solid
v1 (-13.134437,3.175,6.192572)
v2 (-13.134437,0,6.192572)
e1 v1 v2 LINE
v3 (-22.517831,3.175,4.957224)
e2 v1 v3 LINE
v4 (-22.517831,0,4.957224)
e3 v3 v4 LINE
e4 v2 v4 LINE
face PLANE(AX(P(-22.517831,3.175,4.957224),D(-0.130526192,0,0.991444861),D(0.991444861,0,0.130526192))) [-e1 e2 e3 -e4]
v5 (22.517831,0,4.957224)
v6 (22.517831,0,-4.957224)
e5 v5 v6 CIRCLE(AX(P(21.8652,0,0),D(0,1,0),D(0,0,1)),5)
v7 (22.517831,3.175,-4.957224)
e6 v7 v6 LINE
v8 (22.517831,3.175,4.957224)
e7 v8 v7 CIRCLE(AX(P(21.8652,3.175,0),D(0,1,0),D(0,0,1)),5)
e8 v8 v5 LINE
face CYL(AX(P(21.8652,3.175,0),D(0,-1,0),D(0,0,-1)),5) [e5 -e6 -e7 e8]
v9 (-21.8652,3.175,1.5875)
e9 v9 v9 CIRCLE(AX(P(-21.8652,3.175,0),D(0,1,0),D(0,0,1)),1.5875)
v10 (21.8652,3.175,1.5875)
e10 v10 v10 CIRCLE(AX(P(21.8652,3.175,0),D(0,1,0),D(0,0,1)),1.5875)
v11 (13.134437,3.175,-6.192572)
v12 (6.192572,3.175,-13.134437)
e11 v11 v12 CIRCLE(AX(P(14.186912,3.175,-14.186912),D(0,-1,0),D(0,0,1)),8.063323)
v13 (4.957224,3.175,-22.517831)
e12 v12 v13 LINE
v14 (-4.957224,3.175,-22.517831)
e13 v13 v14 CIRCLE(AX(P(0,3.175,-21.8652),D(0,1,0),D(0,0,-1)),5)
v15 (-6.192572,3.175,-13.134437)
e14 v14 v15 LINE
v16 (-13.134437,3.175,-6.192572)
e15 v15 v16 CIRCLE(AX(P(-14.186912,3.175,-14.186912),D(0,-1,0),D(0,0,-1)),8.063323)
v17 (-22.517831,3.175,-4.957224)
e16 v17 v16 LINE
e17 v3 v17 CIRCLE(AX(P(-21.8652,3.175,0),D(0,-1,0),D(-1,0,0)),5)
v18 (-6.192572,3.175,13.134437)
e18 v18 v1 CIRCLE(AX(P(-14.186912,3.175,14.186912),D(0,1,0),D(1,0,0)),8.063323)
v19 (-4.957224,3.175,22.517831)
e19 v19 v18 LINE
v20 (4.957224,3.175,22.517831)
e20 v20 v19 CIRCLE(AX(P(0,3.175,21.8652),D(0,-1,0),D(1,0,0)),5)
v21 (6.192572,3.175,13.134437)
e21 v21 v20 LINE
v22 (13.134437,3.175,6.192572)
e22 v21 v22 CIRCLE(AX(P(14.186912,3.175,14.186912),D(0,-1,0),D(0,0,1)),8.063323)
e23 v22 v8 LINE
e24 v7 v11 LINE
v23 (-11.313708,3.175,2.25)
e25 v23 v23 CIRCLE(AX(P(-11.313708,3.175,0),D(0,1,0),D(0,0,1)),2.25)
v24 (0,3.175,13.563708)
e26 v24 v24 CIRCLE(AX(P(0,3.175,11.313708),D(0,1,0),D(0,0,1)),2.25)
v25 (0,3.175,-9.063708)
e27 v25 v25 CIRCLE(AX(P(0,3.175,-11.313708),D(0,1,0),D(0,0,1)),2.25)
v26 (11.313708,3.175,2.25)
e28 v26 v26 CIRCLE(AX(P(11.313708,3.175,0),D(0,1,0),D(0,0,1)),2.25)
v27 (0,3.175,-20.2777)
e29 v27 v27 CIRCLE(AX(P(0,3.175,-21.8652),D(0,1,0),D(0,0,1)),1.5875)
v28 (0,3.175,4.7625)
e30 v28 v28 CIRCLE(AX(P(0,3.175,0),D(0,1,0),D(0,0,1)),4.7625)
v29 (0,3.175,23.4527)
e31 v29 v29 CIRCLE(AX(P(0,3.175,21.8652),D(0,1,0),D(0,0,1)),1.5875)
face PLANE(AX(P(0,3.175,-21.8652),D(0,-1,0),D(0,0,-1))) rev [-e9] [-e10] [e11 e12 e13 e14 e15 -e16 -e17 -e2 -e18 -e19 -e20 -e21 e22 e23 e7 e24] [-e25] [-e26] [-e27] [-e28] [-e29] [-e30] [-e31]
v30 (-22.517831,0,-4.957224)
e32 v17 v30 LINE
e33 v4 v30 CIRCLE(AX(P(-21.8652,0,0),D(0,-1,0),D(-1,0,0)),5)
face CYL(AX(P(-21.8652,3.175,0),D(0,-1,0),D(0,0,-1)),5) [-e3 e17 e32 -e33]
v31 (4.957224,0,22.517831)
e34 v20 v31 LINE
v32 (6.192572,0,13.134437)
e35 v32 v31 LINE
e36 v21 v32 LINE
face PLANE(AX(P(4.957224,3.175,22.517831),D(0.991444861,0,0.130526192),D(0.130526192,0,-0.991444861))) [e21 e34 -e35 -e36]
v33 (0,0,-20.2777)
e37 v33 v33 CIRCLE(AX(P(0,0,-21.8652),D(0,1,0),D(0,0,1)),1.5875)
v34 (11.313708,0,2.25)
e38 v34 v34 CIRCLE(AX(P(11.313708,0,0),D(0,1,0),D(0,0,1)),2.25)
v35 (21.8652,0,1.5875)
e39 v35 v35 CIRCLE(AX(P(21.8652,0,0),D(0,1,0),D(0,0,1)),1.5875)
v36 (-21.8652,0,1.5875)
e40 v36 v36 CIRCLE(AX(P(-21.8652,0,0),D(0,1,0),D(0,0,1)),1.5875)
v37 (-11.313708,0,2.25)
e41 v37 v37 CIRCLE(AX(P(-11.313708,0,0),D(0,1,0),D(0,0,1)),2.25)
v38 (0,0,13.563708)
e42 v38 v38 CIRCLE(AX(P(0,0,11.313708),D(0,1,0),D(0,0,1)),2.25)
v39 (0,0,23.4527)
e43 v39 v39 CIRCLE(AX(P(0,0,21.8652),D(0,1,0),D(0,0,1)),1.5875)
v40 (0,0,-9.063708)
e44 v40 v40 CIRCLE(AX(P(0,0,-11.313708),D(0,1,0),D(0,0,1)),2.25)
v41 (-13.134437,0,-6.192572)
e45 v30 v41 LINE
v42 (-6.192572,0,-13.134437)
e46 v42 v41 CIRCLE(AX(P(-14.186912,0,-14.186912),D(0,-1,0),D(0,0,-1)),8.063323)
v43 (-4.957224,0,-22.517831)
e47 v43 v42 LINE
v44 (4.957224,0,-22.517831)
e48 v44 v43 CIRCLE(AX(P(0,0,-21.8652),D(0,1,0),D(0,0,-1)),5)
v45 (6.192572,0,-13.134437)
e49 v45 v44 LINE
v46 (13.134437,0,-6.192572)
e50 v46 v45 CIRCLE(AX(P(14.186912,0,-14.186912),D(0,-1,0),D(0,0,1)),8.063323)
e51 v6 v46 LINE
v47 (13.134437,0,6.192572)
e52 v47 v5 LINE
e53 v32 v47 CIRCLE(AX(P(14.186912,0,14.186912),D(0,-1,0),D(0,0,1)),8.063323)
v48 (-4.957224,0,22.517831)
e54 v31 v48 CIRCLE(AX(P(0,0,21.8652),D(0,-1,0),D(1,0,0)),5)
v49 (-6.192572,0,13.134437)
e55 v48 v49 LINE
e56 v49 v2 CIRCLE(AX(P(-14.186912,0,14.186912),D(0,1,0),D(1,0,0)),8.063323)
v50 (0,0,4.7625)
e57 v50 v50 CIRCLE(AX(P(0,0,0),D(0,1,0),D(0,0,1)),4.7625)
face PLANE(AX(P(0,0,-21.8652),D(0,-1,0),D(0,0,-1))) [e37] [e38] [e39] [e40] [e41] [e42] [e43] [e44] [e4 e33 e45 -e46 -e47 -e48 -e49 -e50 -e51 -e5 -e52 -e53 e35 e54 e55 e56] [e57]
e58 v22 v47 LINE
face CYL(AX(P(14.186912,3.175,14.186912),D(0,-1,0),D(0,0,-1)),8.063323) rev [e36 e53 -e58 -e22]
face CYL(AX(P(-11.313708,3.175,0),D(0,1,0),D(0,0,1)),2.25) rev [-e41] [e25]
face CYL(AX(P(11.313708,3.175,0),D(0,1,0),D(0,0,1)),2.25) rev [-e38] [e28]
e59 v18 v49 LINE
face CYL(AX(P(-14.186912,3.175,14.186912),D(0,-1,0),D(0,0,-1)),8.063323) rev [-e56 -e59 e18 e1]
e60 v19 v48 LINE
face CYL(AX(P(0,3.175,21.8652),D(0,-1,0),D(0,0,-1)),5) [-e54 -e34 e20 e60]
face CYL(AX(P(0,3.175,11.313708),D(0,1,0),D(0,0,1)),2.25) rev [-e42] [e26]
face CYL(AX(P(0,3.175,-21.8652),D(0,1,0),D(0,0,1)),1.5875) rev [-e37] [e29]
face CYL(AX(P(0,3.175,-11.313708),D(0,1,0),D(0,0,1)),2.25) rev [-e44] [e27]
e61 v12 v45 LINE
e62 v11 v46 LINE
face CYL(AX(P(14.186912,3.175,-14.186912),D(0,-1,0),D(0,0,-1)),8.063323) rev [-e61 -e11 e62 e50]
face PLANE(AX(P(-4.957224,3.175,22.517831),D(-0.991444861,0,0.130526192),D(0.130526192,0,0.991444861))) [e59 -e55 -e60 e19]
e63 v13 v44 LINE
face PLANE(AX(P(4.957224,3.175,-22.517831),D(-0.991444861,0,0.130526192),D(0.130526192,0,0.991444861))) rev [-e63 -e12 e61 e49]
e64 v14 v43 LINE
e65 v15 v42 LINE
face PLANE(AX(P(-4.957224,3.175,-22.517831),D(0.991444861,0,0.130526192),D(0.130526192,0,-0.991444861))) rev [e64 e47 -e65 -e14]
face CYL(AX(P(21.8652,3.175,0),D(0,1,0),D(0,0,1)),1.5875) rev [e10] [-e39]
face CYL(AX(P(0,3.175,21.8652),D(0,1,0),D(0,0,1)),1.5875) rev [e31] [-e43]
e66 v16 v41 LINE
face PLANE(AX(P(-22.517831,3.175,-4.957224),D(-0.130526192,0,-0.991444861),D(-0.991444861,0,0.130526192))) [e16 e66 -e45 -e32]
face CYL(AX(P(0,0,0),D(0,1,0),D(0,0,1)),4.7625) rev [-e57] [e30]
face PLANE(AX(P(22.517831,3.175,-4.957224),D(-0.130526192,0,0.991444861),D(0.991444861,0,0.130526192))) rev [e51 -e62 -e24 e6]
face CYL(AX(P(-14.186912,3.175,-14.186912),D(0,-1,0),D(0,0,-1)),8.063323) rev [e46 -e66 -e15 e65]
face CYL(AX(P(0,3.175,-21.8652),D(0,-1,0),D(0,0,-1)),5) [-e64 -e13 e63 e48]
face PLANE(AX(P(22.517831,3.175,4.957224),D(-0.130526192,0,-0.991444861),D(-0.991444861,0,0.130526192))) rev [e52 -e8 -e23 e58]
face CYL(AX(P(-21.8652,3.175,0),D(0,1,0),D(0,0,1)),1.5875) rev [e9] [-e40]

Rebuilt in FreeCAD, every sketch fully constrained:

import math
import FreeCAD as App
import Part
import Sketcher
from FreeCAD import Vector
Q = App.Units.Quantity

doc = App.newDocument("Part")
body = doc.addObject("PartDesign::Body", "Body")

sketch1 = doc.addObject("Sketcher::SketchObject", "Sketch")
body.addObject(sketch1)
sketch1.AttachmentSupport = (doc.XZ_Plane, [""])
sketch1.MapMode = "FlatFace"
sketch1.addGeometry([
    Part.LineSegment(Vector(6.192572, -13.134437, 0), Vector(4.957224, -22.517831, 0)),
    Part.ArcOfCircle(Part.Circle(Vector(0, -21.8652, 0), Vector(0, 0, 1), 5), math.radians(-172.5), math.radians(-7.5)),
    Part.LineSegment(Vector(-4.957224, -22.517831, 0), Vector(-6.192572, -13.134437, 0)),
    Part.ArcOfCircle(Part.Circle(Vector(-14.186912, -14.186912, 0), Vector(0, 0, 1), 8.063323), math.radians(7.5), math.radians(45)),
    Part.LineSegment(Vector(-8.485281, -8.485281, 0), Vector(8.485281, 8.485281, 0)),
    Part.ArcOfCircle(Part.Circle(Vector(14.186912, 14.186912, 0), Vector(0, 0, 1), 8.063323), math.radians(-135), math.radians(-97.5)),
    Part.LineSegment(Vector(13.134437, 6.192572, 0), Vector(22.517831, 4.957224, 0)),
    Part.ArcOfCircle(Part.Circle(Vector(21.8652, 0, 0), Vector(0, 0, 1), 5), math.radians(-82.5), math.radians(82.5)),
    Part.LineSegment(Vector(22.517831, -4.957224, 0), Vector(13.134437, -6.192572, 0)),
    Part.ArcOfCircle(Part.Circle(Vector(14.186912, -14.186912, 0), Vector(0, 0, 1), 8.063323), math.radians(97.5), math.radians(172.5)),
], False)
sketch1.addConstraint([
    Sketcher.Constraint("Tangent", 0, 2, 1, 2),
    Sketcher.Constraint("Tangent", 1, 1, 2, 1),
    Sketcher.Constraint("Tangent", 2, 2, 3, 1),
    Sketcher.Constraint("Coincident", 3, 2, 4, 1),
    Sketcher.Constraint("Coincident", 4, 2, 5, 1),
    Sketcher.Constraint("Tangent", 5, 2, 6, 1),
    Sketcher.Constraint("Tangent", 6, 2, 7, 2),
    Sketcher.Constraint("Tangent", 7, 1, 8, 1),
    Sketcher.Constraint("Tangent", 8, 2, 9, 1),
    Sketcher.Constraint("Tangent", 9, 2, 0, 1),
    Sketcher.Constraint("Equal", 3, 5),
    Sketcher.Constraint("Equal", 1, 7),
    Sketcher.Constraint("Equal", 5, 9),
    Sketcher.Constraint("Symmetric", 3, 3, 5, 3, -1, 1),
    Sketcher.Constraint("Symmetric", 3, 3, 9, 3, -2),
    Sketcher.Constraint("PointOnObject", 1, 3, -2),
    Sketcher.Constraint("PointOnObject", 7, 3, -1),
    Sketcher.Constraint("Perpendicular", 0, 6),
    Sketcher.Constraint("Equal", 2, 6),
    Sketcher.Constraint("Radius", 1, Q("5 mm")),
    Sketcher.Constraint("Angle", 4, Q("45 deg")),
    Sketcher.Constraint("Distance", 4, Q("24 mm")),
    Sketcher.Constraint("Angle", 0, Q("-97.5 deg")),
    Sketcher.Constraint("Radius", 3, Q("8.063323 mm")),
    Sketcher.Constraint("DistanceX", 3, 2, -1, 1, Q("8.485281 mm")),
])
pad1 = doc.addObject("PartDesign::Pad", "Pad")
body.addObject(pad1)
pad1.Profile = sketch1
pad1.Length = 3.175
pad1.Reversed = True
doc.recompute()

datumplane = doc.addObject("PartDesign::Plane", "DatumPlane")
body.addObject(datumplane)
datumplane.Placement = App.Placement(Vector(0, 0, 0), App.Rotation(Vector(0.707106781, 0, 0.707106781), Vector(0, -1, 0), Vector(0.707106781, 0, -0.707106781), "ZXY"))
mirrored = doc.addObject("PartDesign::Mirrored", "Mirrored")
body.addObject(mirrored)
mirrored.Originals = [pad1]
mirrored.MirrorPlane = (datumplane, [""])
body.Tip = mirrored

sketch2 = doc.addObject("Sketcher::SketchObject", "Sketch001")
body.addObject(sketch2)
sketch2.AttachmentSupport = (doc.XZ_Plane, [""])
sketch2.MapMode = "FlatFace"
sketch2.AttachmentOffset = App.Placement(Vector(0, 0, -3.175), App.Rotation())
sketch2.addGeometry([
    Part.Circle(Vector(0, -21.8652, 0), Vector(0, 0, 1), 1.5875),
    Part.Circle(Vector(0, 21.8652, 0), Vector(0, 0, 1), 1.5875),
    Part.Circle(Vector(-21.8652, 0, 0), Vector(0, 0, 1), 1.5875),
    Part.Circle(Vector(21.8652, 0, 0), Vector(0, 0, 1), 1.5875),
], False)
sketch2.addConstraint([
    Sketcher.Constraint("Equal", 0, 1),
    Sketcher.Constraint("Equal", 1, 2),
    Sketcher.Constraint("Equal", 2, 3),
    Sketcher.Constraint("Symmetric", 0, 3, 1, 3, -1, 1),
    Sketcher.Constraint("Symmetric", 2, 3, 3, 3, -1, 1),
    Sketcher.Constraint("PointOnObject", 0, 3, -2),
    Sketcher.Constraint("PointOnObject", 2, 3, -1),
    Sketcher.Constraint("Diameter", 0, Q("3.175 mm")),
    Sketcher.Constraint("DistanceY", 0, 3, -1, 1, Q("21.8652 mm")),
    Sketcher.Constraint("DistanceX", 2, 3, -1, 1, Q("21.8652 mm")),
])
doc.recompute()
hole = doc.addObject("PartDesign::Hole", "Hole")
body.addObject(hole)
hole.Profile = sketch2
hole.ThreadType = "None"
hole.Diameter = 3.175
hole.DepthType = "ThroughAll"
hole.Reversed = True

sketch3 = doc.addObject("Sketcher::SketchObject", "Sketch002")
body.addObject(sketch3)
sketch3.AttachmentSupport = (doc.XZ_Plane, [""])
sketch3.MapMode = "FlatFace"
sketch3.AttachmentOffset = App.Placement(Vector(0, 0, -3.175), App.Rotation())
sketch3.addGeometry(Part.Circle(Vector(0, 0, 0), Vector(0, 0, 1), 4.7625), False)
sketch3.addConstraint([
    Sketcher.Constraint("Coincident", 0, 3, -1, 1),
    Sketcher.Constraint("Diameter", 0, Q("9.525 mm")),
])
pocket1 = doc.addObject("PartDesign::Pocket", "Pocket")
body.addObject(pocket1)
pocket1.Profile = sketch3
pocket1.Type = "ThroughAll"
pocket1.Reversed = True

sketch4 = doc.addObject("Sketcher::SketchObject", "Sketch003")
body.addObject(sketch4)
sketch4.AttachmentSupport = (doc.XZ_Plane, [""])
sketch4.MapMode = "FlatFace"
sketch4.AttachmentOffset = App.Placement(Vector(0, 0, -3.175), App.Rotation())
sketch4.addGeometry([
    Part.Circle(Vector(-11.313708, 0, 0), Vector(0, 0, 1), 2.25),
    Part.Circle(Vector(0, -11.313708, 0), Vector(0, 0, 1), 2.25),
    Part.Circle(Vector(11.313708, 0, 0), Vector(0, 0, 1), 2.25),
    Part.Circle(Vector(0, 11.313708, 0), Vector(0, 0, 1), 2.25),
], False)
sketch4.addConstraint([
    Sketcher.Constraint("Equal", 0, 1),
    Sketcher.Constraint("Equal", 1, 2),
    Sketcher.Constraint("Equal", 2, 3),
    Sketcher.Constraint("Symmetric", 0, 3, 2, 3, -1, 1),
    Sketcher.Constraint("Symmetric", 1, 3, 3, 3, -1, 1),
    Sketcher.Constraint("PointOnObject", 0, 3, -1),
    Sketcher.Constraint("PointOnObject", 1, 3, -2),
    Sketcher.Constraint("Diameter", 0, Q("4.5 mm")),
    Sketcher.Constraint("DistanceX", 0, 3, -1, 1, Q("11.313708 mm")),
    Sketcher.Constraint("DistanceY", 1, 3, -1, 1, Q("11.313708 mm")),
])
doc.recompute()
hole2 = doc.addObject("PartDesign::Hole", "Hole001")
body.addObject(hole2)
hole2.Profile = sketch4
hole2.ThreadType = "None"
hole2.Diameter = 4.5
hole2.DepthType = "ThroughAll"
hole2.Reversed = True

doc.recompute()
